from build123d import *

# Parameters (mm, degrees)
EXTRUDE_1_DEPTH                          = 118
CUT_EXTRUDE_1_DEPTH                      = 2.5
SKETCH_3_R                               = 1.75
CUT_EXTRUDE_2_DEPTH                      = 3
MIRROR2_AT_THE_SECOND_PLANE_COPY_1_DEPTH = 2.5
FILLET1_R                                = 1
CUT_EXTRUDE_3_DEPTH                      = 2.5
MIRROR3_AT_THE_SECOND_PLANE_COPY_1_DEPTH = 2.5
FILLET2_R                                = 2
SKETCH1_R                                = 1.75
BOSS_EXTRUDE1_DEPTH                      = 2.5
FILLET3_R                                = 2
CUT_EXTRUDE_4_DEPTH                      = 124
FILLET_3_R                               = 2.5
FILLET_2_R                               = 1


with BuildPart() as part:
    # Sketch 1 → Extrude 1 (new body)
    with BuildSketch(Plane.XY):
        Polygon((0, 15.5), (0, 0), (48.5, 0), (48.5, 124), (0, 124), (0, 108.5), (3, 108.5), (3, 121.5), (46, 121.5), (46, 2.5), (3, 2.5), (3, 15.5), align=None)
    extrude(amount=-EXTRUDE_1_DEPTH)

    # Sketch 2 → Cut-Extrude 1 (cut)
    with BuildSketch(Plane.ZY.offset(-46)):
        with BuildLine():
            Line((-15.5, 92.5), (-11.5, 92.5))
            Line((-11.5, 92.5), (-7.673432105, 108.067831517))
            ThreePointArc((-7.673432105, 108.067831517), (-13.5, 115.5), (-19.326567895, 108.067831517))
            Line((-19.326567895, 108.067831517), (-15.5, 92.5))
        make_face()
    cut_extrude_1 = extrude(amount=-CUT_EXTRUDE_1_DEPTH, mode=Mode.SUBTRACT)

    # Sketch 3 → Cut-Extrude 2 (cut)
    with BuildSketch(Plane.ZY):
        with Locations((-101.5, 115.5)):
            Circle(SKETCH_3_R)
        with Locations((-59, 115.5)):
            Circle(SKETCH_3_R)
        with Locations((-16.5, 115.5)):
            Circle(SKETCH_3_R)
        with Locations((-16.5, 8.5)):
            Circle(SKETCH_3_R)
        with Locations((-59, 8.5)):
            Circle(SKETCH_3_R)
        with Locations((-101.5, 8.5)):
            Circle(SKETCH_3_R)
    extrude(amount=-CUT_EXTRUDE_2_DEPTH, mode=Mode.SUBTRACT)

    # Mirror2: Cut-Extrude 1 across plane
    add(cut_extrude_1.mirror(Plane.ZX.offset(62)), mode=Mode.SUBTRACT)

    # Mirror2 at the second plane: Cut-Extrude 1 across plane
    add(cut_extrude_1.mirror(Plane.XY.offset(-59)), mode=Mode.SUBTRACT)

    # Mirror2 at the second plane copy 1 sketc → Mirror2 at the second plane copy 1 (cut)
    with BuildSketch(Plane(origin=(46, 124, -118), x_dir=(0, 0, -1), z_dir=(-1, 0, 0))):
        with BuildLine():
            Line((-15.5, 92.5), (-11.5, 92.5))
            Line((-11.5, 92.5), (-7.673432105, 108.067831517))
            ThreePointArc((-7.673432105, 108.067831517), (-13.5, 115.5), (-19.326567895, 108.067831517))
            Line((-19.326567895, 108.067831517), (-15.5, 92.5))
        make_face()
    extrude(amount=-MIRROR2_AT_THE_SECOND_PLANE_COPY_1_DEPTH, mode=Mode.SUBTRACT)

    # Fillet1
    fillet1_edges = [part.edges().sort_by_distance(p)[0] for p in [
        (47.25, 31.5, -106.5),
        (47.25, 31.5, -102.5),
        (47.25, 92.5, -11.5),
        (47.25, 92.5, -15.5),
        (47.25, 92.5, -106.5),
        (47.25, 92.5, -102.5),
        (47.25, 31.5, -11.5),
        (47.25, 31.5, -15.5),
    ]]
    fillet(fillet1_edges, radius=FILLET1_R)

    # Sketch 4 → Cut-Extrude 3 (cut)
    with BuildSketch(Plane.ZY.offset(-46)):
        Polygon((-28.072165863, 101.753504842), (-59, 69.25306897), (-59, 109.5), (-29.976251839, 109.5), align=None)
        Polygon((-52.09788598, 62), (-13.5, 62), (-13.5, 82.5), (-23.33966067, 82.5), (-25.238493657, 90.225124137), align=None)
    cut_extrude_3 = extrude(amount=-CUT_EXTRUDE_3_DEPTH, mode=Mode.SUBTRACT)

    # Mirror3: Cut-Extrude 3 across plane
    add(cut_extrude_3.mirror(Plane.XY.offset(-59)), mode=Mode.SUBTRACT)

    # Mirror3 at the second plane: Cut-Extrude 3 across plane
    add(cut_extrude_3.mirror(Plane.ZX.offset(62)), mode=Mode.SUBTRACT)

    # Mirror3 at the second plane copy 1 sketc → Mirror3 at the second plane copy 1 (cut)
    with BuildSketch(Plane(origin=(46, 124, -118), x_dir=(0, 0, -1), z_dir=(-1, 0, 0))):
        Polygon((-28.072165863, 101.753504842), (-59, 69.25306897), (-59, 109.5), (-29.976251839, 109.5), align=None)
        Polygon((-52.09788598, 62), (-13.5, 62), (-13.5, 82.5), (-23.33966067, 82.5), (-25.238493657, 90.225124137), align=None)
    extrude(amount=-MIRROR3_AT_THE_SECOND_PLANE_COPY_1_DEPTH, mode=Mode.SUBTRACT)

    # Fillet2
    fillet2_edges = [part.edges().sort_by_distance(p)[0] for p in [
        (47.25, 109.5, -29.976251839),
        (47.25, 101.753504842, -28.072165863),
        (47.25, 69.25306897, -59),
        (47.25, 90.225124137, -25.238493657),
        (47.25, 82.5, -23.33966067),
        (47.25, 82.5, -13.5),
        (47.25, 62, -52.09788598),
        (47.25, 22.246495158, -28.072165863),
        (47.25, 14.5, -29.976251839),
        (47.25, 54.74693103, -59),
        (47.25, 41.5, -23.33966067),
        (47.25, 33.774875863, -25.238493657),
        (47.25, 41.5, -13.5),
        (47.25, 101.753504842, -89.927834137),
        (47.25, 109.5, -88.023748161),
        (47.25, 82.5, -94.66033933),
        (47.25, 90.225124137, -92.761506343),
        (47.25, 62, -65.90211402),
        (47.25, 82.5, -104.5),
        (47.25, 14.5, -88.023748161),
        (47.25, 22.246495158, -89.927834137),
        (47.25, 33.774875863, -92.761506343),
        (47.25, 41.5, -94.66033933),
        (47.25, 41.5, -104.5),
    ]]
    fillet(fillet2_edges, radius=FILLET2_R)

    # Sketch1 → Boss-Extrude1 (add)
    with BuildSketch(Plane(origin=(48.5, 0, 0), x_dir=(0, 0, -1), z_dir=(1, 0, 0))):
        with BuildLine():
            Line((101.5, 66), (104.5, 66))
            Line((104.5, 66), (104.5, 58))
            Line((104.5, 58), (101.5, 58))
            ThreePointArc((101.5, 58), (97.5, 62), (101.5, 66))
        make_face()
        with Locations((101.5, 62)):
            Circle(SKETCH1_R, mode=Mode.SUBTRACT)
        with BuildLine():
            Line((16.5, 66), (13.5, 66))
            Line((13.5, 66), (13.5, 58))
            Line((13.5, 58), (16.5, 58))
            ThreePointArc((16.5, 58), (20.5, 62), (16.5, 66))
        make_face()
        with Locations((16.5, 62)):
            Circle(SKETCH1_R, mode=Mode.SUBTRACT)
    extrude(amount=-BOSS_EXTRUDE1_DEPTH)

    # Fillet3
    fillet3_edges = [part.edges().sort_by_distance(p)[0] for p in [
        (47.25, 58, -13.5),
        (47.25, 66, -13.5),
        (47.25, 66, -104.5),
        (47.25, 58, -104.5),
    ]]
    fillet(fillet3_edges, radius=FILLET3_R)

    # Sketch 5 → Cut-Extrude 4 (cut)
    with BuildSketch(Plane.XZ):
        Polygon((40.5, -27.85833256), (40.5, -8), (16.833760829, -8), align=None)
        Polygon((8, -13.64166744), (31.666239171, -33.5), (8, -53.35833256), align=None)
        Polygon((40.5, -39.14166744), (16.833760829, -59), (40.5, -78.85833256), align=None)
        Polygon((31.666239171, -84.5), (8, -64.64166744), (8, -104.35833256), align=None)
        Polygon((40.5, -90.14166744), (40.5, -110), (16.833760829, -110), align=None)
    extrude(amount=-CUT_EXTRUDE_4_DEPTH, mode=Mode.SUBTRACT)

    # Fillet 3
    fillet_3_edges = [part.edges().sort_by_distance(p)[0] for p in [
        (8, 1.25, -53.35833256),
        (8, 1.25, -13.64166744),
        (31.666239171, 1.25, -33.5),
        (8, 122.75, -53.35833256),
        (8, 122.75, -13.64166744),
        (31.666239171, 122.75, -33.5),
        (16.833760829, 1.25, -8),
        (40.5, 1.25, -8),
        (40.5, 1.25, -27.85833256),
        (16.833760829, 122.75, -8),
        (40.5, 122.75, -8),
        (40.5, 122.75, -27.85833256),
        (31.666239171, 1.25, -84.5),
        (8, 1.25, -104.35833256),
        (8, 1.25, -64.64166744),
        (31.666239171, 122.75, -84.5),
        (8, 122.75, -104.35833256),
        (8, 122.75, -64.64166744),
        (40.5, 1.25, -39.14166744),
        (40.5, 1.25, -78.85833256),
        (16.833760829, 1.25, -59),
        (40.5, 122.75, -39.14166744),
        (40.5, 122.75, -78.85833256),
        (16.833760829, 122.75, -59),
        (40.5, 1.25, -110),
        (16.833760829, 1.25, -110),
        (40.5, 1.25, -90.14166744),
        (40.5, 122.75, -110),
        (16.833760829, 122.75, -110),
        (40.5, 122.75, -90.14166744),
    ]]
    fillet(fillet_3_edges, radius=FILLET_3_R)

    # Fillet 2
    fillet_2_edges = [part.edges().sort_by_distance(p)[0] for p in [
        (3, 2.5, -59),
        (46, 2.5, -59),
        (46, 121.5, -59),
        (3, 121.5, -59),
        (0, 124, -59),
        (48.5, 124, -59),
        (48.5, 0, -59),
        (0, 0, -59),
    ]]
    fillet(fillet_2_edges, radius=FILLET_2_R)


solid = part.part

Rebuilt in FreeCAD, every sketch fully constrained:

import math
import FreeCAD as App
import Part
import Sketcher
Q = App.Units.Quantity


def edges_at(feature, points):
    """Names of the edges that pass closest to the given points."""
    edges = feature.Shape.Edges
    near = lambda p: min(range(len(edges)), key=lambda i: edges[i].distToShape(Part.Vertex(*p))[0])
    return sorted({f"Edge{near(p) + 1}" for p in points})

doc = App.newDocument("Part")
body = doc.addObject("PartDesign::Body", "Body")

sketch1 = body.newObject("Sketcher::SketchObject", "Sketch")
sketch1.AttachmentSupport = (doc.getObject("XY_Plane"), [""])
sketch1.MapMode = "FlatFace"
sketch1.addGeometry([
    Part.LineSegment(App.Vector(0, 15.5, 0), App.Vector(0, 0, 0)),
    Part.LineSegment(App.Vector(0, 0, 0), App.Vector(48.5, 0, 0)),
    Part.LineSegment(App.Vector(48.5, 0, 0), App.Vector(48.5, 124, 0)),
    Part.LineSegment(App.Vector(48.5, 124, 0), App.Vector(0, 124, 0)),
    Part.LineSegment(App.Vector(0, 124, 0), App.Vector(0, 108.5, 0)),
    Part.LineSegment(App.Vector(0, 108.5, 0), App.Vector(3, 108.5, 0)),
    Part.LineSegment(App.Vector(3, 108.5, 0), App.Vector(3, 121.5, 0)),
    Part.LineSegment(App.Vector(3, 121.5, 0), App.Vector(46, 121.5, 0)),
    Part.LineSegment(App.Vector(46, 121.5, 0), App.Vector(46, 2.5, 0)),
    Part.LineSegment(App.Vector(46, 2.5, 0), App.Vector(3, 2.5, 0)),
    Part.LineSegment(App.Vector(3, 2.5, 0), App.Vector(3, 15.5, 0)),
    Part.LineSegment(App.Vector(3, 15.5, 0), App.Vector(0, 15.5, 0)),
], False)
sketch1.addConstraint([
    Sketcher.Constraint("Coincident", 0, 2, 1, 1),
    Sketcher.Constraint("Coincident", 1, 2, 2, 1),
    Sketcher.Constraint("Coincident", 2, 2, 3, 1),
    Sketcher.Constraint("Coincident", 3, 2, 4, 1),
    Sketcher.Constraint("Coincident", 4, 2, 5, 1),
    Sketcher.Constraint("Coincident", 5, 2, 6, 1),
    Sketcher.Constraint("Coincident", 6, 2, 7, 1),
    Sketcher.Constraint("Coincident", 7, 2, 8, 1),
    Sketcher.Constraint("Coincident", 8, 2, 9, 1),
    Sketcher.Constraint("Coincident", 9, 2, 10, 1),
    Sketcher.Constraint("Coincident", 10, 2, 11, 1),
    Sketcher.Constraint("Coincident", 11, 2, 0, 1),
    Sketcher.Constraint("Vertical", 0),
    Sketcher.Constraint("Horizontal", 1),
    Sketcher.Constraint("Vertical", 2),
    Sketcher.Constraint("Horizontal", 3),
    Sketcher.Constraint("Vertical", 4),
    Sketcher.Constraint("Horizontal", 5),
    Sketcher.Constraint("Vertical", 6),
    Sketcher.Constraint("Horizontal", 7),
    Sketcher.Constraint("Vertical", 8),
    Sketcher.Constraint("Horizontal", 9),
    Sketcher.Constraint("Vertical", 10),
    Sketcher.Constraint("Horizontal", 11),
    Sketcher.Constraint("Coincident", 0, 2, -1, 1),
    Sketcher.Constraint("PointOnObject", 3, 2, -2),
    Sketcher.Constraint("Vertical", 6, 2, 9, 2),
    Sketcher.Constraint("Equal", 0, 4),
    Sketcher.Constraint("Equal", 6, 10),
    Sketcher.Constraint("DistanceX", 5, 1, 5, 2, Q("3 mm")),
    Sketcher.Constraint("DistanceX", 7, 1, 7, 2, Q("43 mm")),
    Sketcher.Constraint("DistanceY", 2, 1, 2, 2, Q("124 mm")),
    Sketcher.Constraint("DistanceY", 6, 1, 6, 2, Q("13 mm")),
    Sketcher.Constraint("DistanceY", 8, 2, 8, 1, Q("119 mm")),
    Sketcher.Constraint("DistanceX", 1, 1, 1, 2, Q("48.5 mm")),
])
pad1 = body.newObject("PartDesign::Pad", "Pad")
pad1.Profile = sketch1
pad1.Length = 118
pad1.Reversed = True

sketch2 = body.newObject("Sketcher::SketchObject", "Sketch001")
sketch2.AttachmentSupport = (doc.getObject("YZ_Plane"), [""])
sketch2.MapMode = "FlatFace"
sketch2.AttachmentOffset = App.Placement(App.Vector(0, 0, 46), App.Rotation())
sketch2.addGeometry([
    Part.LineSegment(App.Vector(92.5, -15.5, 0), App.Vector(92.5, -11.5, 0)),
    Part.LineSegment(App.Vector(92.5, -11.5, 0), App.Vector(108.067832, -7.673432, 0)),
    Part.ArcOfCircle(Part.Circle(App.Vector(109.5, -13.5, 0), App.Vector(0, 0, 1), 6), math.radians(-103.809516), math.radians(103.809516)),
    Part.LineSegment(App.Vector(108.067832, -19.326568, 0), App.Vector(92.5, -15.5, 0)),
], False)
sketch2.addConstraint([
    Sketcher.Constraint("Coincident", 0, 2, 1, 1),
    Sketcher.Constraint("Tangent", 1, 2, 2, 2),
    Sketcher.Constraint("Tangent", 2, 1, 3, 1),
    Sketcher.Constraint("Coincident", 3, 2, 0, 1),
    Sketcher.Constraint("Vertical", 0),
    Sketcher.Constraint("Vertical", 1, 2, 2, 1),
    Sketcher.Constraint("Radius", 2, Q("6 mm")),
    Sketcher.Constraint("DistanceY", 0, 1, 0, 2, Q("4 mm")),
    Sketcher.Constraint("DistanceX", 0, 2, 2, 3, Q("17 mm")),
    Sketcher.Constraint("DistanceX", -1, 1, 2, 3, Q("109.5 mm")),
    Sketcher.Constraint("DistanceY", 2, 3, -1, 1, Q("13.5 mm")),
])
pocket1 = body.newObject("PartDesign::Pocket", "Pocket")
pocket1.Profile = sketch2
pocket1.Length = 2.5
pocket1.Reversed = True

sketch3 = body.newObject("Sketcher::SketchObject", "Sketch002")
sketch3.AttachmentSupport = (doc.getObject("YZ_Plane"), [""])
sketch3.MapMode = "FlatFace"
sketch3.addGeometry([
    Part.Circle(App.Vector(115.5, -101.5, 0), App.Vector(0, 0, 1), 1.75),
    Part.Circle(App.Vector(115.5, -59, 0), App.Vector(0, 0, 1), 1.75),
    Part.Circle(App.Vector(115.5, -16.5, 0), App.Vector(0, 0, 1), 1.75),
    Part.Circle(App.Vector(8.5, -16.5, 0), App.Vector(0, 0, 1), 1.75),
    Part.Circle(App.Vector(8.5, -59, 0), App.Vector(0, 0, 1), 1.75),
    Part.Circle(App.Vector(8.5, -101.5, 0), App.Vector(0, 0, 1), 1.75),
], False)
sketch3.addConstraint([
    Sketcher.Constraint("Equal", 0, 1),
    Sketcher.Constraint("Equal", 1, 2),
    Sketcher.Constraint("Equal", 2, 3),
    Sketcher.Constraint("Equal", 3, 4),
    Sketcher.Constraint("Equal", 4, 5),
    Sketcher.Constraint("Horizontal", 2, 3, 3, 3),
    Sketcher.Constraint("Horizontal", 1, 3, 4, 3),
    Sketcher.Constraint("Horizontal", 0, 3, 5, 3),
    Sketcher.Constraint("Vertical", 0, 3, 1, 3),
    Sketcher.Constraint("Vertical", 1, 3, 2, 3),
    Sketcher.Constraint("Vertical", 3, 3, 4, 3),
    Sketcher.Constraint("Vertical", 4, 3, 5, 3),
    Sketcher.Constraint("Diameter", 0, Q("3.5 mm")),
    Sketcher.Constraint("DistanceY", 1, 3, -1, 1, Q("59 mm")),
    Sketcher.Constraint("DistanceY", 0, 3, 2, 3, Q("85 mm")),
    Sketcher.Constraint("DistanceX", 3, 3, 2, 3, Q("107 mm")),
    Sketcher.Constraint("DistanceX", -1, 1, 0, 3, Q("115.5 mm")),
    Sketcher.Constraint("DistanceY", 0, 3, -1, 1, Q("101.5 mm")),
])
pocket2 = body.newObject("PartDesign::Pocket", "Pocket001")
pocket2.Profile = sketch3
pocket2.Length = 3
pocket2.Reversed = True
doc.recompute()

datumplane = body.newObject("PartDesign::Plane", "DatumPlane")
datumplane.AttachmentSupport = (doc.getObject("XZ_Plane"), [""])
datumplane.MapMode = "FlatFace"
datumplane.AttachmentOffset = App.Placement(App.Vector(0, 0, -62), App.Rotation())
mirrored = body.newObject("PartDesign::Mirrored", "Mirrored")
mirrored.Originals = [pocket1]
mirrored.MirrorPlane = (datumplane, [""])
body.Tip = mirrored
doc.recompute()

datumplane2 = body.newObject("PartDesign::Plane", "DatumPlane001")
datumplane2.AttachmentSupport = (doc.getObject("XY_Plane"), [""])
datumplane2.MapMode = "FlatFace"
datumplane2.AttachmentOffset = App.Placement(App.Vector(0, 0, -59), App.Rotation())
mirrored2 = body.newObject("PartDesign::Mirrored", "Mirrored001")
mirrored2.Originals = [pocket1]
mirrored2.MirrorPlane = (datumplane2, [""])
body.Tip = mirrored2

sketch4 = body.newObject("Sketcher::SketchObject", "Sketch003")
sketch4.AttachmentSupport = (doc.getObject("YZ_Plane"), [""])
sketch4.MapMode = "FlatFace"
sketch4.AttachmentOffset = App.Placement(App.Vector(0, 0, 46), App.Rotation())
sketch4.addGeometry([
    Part.LineSegment(App.Vector(31.5, -102.5, 0), App.Vector(31.5, -106.5, 0)),
    Part.LineSegment(App.Vector(31.5, -106.5, 0), App.Vector(15.932168, -110.326568, 0)),
    Part.ArcOfCircle(Part.Circle(App.Vector(14.5, -104.5, 0), App.Vector(0, 0, 1), 6), math.radians(76.190484), math.radians(283.809516)),
    Part.LineSegment(App.Vector(15.932168, -98.673432, 0), App.Vector(31.5, -102.5, 0)),
], False)
sketch4.addConstraint([
    Sketcher.Constraint("Coincident", 0, 2, 1, 1),
    Sketcher.Constraint("Tangent", 1, 2, 2, 2),
    Sketcher.Constraint("Tangent", 2, 1, 3, 1),
    Sketcher.Constraint("Coincident", 3, 2, 0, 1),
    Sketcher.Constraint("Vertical", 0),
    Sketcher.Constraint("Vertical", 1, 2, 2, 1),
    Sketcher.Constraint("Radius", 2, Q("6 mm")),
    Sketcher.Constraint("DistanceY", 0, 2, 0, 1, Q("4 mm")),
    Sketcher.Constraint("DistanceX", 2, 3, 0, 2, Q("17 mm")),
    Sketcher.Constraint("DistanceX", -1, 1, 2, 3, Q("14.5 mm")),
    Sketcher.Constraint("DistanceY", 2, 3, -1, 1, Q("104.5 mm")),
])
pocket3 = body.newObject("PartDesign::Pocket", "Pocket002")
pocket3.Profile = sketch4
pocket3.Length = 2.5
pocket3.Reversed = True
doc.recompute()

fillet = body.newObject("PartDesign::Fillet", "Fillet")
fillet.Base = (pocket3, edges_at(pocket3, [
    (47.25, 31.5, -106.5),
    (47.25, 31.5, -102.5),
    (47.25, 92.5, -11.5),
    (47.25, 92.5, -15.5),
    (47.25, 92.5, -106.5),
    (47.25, 92.5, -102.5),
    (47.25, 31.5, -11.5),
    (47.25, 31.5, -15.5),
]))
fillet.Radius = 1

sketch5 = body.newObject("Sketcher::SketchObject", "Sketch004")
sketch5.AttachmentSupport = (doc.getObject("YZ_Plane"), [""])
sketch5.MapMode = "FlatFace"
sketch5.AttachmentOffset = App.Placement(App.Vector(0, 0, 46), App.Rotation())
sketch5.addGeometry([
    Part.LineSegment(App.Vector(69.253069, -59, 0), App.Vector(101.753505, -28.072166, 0)),
    Part.LineSegment(App.Vector(101.753505, -28.072166, 0), App.Vector(109.5, -29.976252, 0)),
    Part.LineSegment(App.Vector(109.5, -29.976252, 0), App.Vector(109.5, -59, 0)),
    Part.LineSegment(App.Vector(109.5, -59, 0), App.Vector(69.253069, -59, 0)),
    Part.LineSegment(App.Vector(62, -52.097886, 0), App.Vector(62, -13.5, 0)),
    Part.LineSegment(App.Vector(62, -13.5, 0), App.Vector(82.5, -13.5, 0)),
    Part.LineSegment(App.Vector(82.5, -13.5, 0), App.Vector(82.5, -23.339661, 0)),
    Part.LineSegment(App.Vector(82.5, -23.339661, 0), App.Vector(90.225124, -25.238494, 0)),
    Part.LineSegment(App.Vector(90.225124, -25.238494, 0), App.Vector(62, -52.097886, 0)),
], False)
sketch5.addConstraint([
    Sketcher.Constraint("Coincident", 0, 2, 1, 1),
    Sketcher.Constraint("Coincident", 1, 2, 2, 1),
    Sketcher.Constraint("Coincident", 2, 2, 3, 1),
    Sketcher.Constraint("Coincident", 3, 2, 0, 1),
    Sketcher.Constraint("Coincident", 4, 2, 5, 1),
    Sketcher.Constraint("Coincident", 5, 2, 6, 1),
    Sketcher.Constraint("Coincident", 6, 2, 7, 1),
    Sketcher.Constraint("Coincident", 7, 2, 8, 1),
    Sketcher.Constraint("Coincident", 8, 2, 4, 1),
    Sketcher.Constraint("Vertical", 2),
    Sketcher.Constraint("Horizontal", 3),
    Sketcher.Constraint("Vertical", 4),
    Sketcher.Constraint("Horizontal", 5),
    Sketcher.Constraint("Vertical", 6),
    Sketcher.Constraint("Parallel", 1, 7),
    Sketcher.Constraint("Parallel", 0, 8),
    Sketcher.Constraint("DistanceX", 5, 1, 5, 2, Q("20.5 mm")),
    Sketcher.Constraint("DistanceY", 2, 2, -1, 1, Q("59 mm")),
    Sketcher.Constraint("DistanceX", -1, 1, 4, 2, Q("62 mm")),
    Sketcher.Constraint("DistanceX", 5, 2, 1, 2, Q("27 mm")),
    Sketcher.Constraint("DistanceY", 4, 2, -1, 1, Q("13.5 mm")),
    Sketcher.Constraint("DistanceX", 3, 2, 3, 1, Q("40.246931 mm")),
    Sketcher.Constraint("DistanceY", 2, 2, 2, 1, Q("29.023748 mm")),
    Sketcher.Constraint("DistanceY", 6, 2, 6, 1, Q("9.839661 mm")),
    Sketcher.Constraint("Distance", 7, Q("7.955068 mm")),
    Sketcher.Constraint("DistanceY", 4, 1, 4, 2, Q("38.597886 mm")),
    Sketcher.Constraint("DistanceX", 7, 2, 0, 2, Q("11.528381 mm")),
])
pocket4 = body.newObject("PartDesign::Pocket", "Pocket003")
pocket4.Profile = sketch5
pocket4.Length = 2.5
pocket4.Reversed = True
doc.recompute()

datumplane3 = body.newObject("PartDesign::Plane", "DatumPlane002")
datumplane3.AttachmentSupport = (doc.getObject("XY_Plane"), [""])
datumplane3.MapMode = "FlatFace"
datumplane3.AttachmentOffset = App.Placement(App.Vector(0, 0, -59), App.Rotation())
mirrored3 = body.newObject("PartDesign::Mirrored", "Mirrored002")
mirrored3.Originals = [pocket4]
mirrored3.MirrorPlane = (datumplane3, [""])
body.Tip = mirrored3
doc.recompute()

datumplane4 = body.newObject("PartDesign::Plane", "DatumPlane003")
datumplane4.AttachmentSupport = (doc.getObject("XZ_Plane"), [""])
datumplane4.MapMode = "FlatFace"
datumplane4.AttachmentOffset = App.Placement(App.Vector(0, 0, -62), App.Rotation())
mirrored4 = body.newObject("PartDesign::Mirrored", "Mirrored003")
mirrored4.Originals = [pocket4]
mirrored4.MirrorPlane = (datumplane4, [""])
body.Tip = mirrored4

sketch6 = body.newObject("Sketcher::SketchObject", "Sketch005")
sketch6.AttachmentSupport = (doc.getObject("YZ_Plane"), [""])
sketch6.MapMode = "FlatFace"
sketch6.AttachmentOffset = App.Placement(App.Vector(0, 0, 46), App.Rotation())
sketch6.addGeometry([
    Part.LineSegment(App.Vector(54.746931, -59, 0), App.Vector(22.246495, -89.927834, 0)),
    Part.LineSegment(App.Vector(22.246495, -89.927834, 0), App.Vector(14.5, -88.023748, 0)),
    Part.LineSegment(App.Vector(14.5, -88.023748, 0), App.Vector(14.5, -59, 0)),
    Part.LineSegment(App.Vector(14.5, -59, 0), App.Vector(54.746931, -59, 0)),
    Part.LineSegment(App.Vector(62, -65.902114, 0), App.Vector(62, -104.5, 0)),
    Part.LineSegment(App.Vector(62, -104.5, 0), App.Vector(41.5, -104.5, 0)),
    Part.LineSegment(App.Vector(41.5, -104.5, 0), App.Vector(41.5, -94.660339, 0)),
    Part.LineSegment(App.Vector(41.5, -94.660339, 0), App.Vector(33.774876, -92.761506, 0)),
    Part.LineSegment(App.Vector(33.774876, -92.761506, 0), App.Vector(62, -65.902114, 0)),
], False)
sketch6.addConstraint([
    Sketcher.Constraint("Coincident", 0, 2, 1, 1),
    Sketcher.Constraint("Coincident", 1, 2, 2, 1),
    Sketcher.Constraint("Coincident", 2, 2, 3, 1),
    Sketcher.Constraint("Coincident", 3, 2, 0, 1),
    Sketcher.Constraint("Coincident", 4, 2, 5, 1),
    Sketcher.Constraint("Coincident", 5, 2, 6, 1),
    Sketcher.Constraint("Coincident", 6, 2, 7, 1),
    Sketcher.Constraint("Coincident", 7, 2, 8, 1),
    Sketcher.Constraint("Coincident", 8, 2, 4, 1),
    Sketcher.Constraint("Vertical", 2),
    Sketcher.Constraint("Horizontal", 3),
    Sketcher.Constraint("Vertical", 4),
    Sketcher.Constraint("Horizontal", 5),
    Sketcher.Constraint("Vertical", 6),
    Sketcher.Constraint("Parallel", 1, 7),
    Sketcher.Constraint("Parallel", 0, 8),
    Sketcher.Constraint("DistanceX", 5, 2, 5, 1, Q("20.5 mm")),
    Sketcher.Constraint("DistanceY", 2, 2, -1, 1, Q("59 mm")),
    Sketcher.Constraint("DistanceX", -1, 1, 4, 2, Q("62 mm")),
    Sketcher.Constraint("DistanceX", 1, 2, 5, 2, Q("27 mm")),
    Sketcher.Constraint("DistanceY", 4, 2, -1, 1, Q("104.5 mm")),
    Sketcher.Constraint("DistanceX", 3, 1, 3, 2, Q("40.246931 mm")),
    Sketcher.Constraint("DistanceY", 2, 1, 2, 2, Q("29.023748 mm")),
    Sketcher.Constraint("DistanceY", 6, 1, 6, 2, Q("9.839661 mm")),
    Sketcher.Constraint("Distance", 7, Q("7.955068 mm")),
    Sketcher.Constraint("DistanceY", 4, 2, 4, 1, Q("38.597886 mm")),
    Sketcher.Constraint("DistanceX", 0, 2, 7, 2, Q("11.528381 mm")),
])
pocket5 = body.newObject("PartDesign::Pocket", "Pocket004")
pocket5.Profile = sketch6
pocket5.Length = 2.5
pocket5.Reversed = True
doc.recompute()

fillet2 = body.newObject("PartDesign::Fillet", "Fillet001")
fillet2.Base = (pocket5, edges_at(pocket5, [
    (47.25, 109.5, -29.976),
    (47.25, 101.754, -28.072),
    (47.25, 69.253, -59),
    (47.25, 90.225, -25.238),
    (47.25, 82.5, -23.34),
    (47.25, 82.5, -13.5),
    (47.25, 62, -52.098),
    (47.25, 22.246, -28.072),
    (47.25, 14.5, -29.976),
    (47.25, 54.747, -59),
    (47.25, 41.5, -23.34),
    (47.25, 33.775, -25.238),
    (47.25, 41.5, -13.5),
    (47.25, 101.754, -89.928),
    (47.25, 109.5, -88.024),
    (47.25, 82.5, -94.66),
    (47.25, 90.225, -92.762),
    (47.25, 62, -65.902),
    (47.25, 82.5, -104.5),
    (47.25, 14.5, -88.024),
    (47.25, 22.246, -89.928),
    (47.25, 33.775, -92.762),
    (47.25, 41.5, -94.66),
    (47.25, 41.5, -104.5),
]))
fillet2.Radius = 2

sketch7 = body.newObject("Sketcher::SketchObject", "Sketch006")
sketch7.AttachmentSupport = (doc.getObject("YZ_Plane"), [""])
sketch7.MapMode = "FlatFace"
sketch7.AttachmentOffset = App.Placement(App.Vector(0, 0, 48.5), App.Rotation())
sketch7.addGeometry([
    Part.LineSegment(App.Vector(66, -104.5, 0), App.Vector(66, -101.5, 0)),
    Part.ArcOfCircle(Part.Circle(App.Vector(62, -101.5, 0), App.Vector(0, 0, 1), 4), math.radians(0), math.radians(180)),
    Part.LineSegment(App.Vector(58, -101.5, 0), App.Vector(58, -104.5, 0)),
    Part.LineSegment(App.Vector(58, -104.5, 0), App.Vector(66, -104.5, 0)),
    Part.Circle(App.Vector(62, -101.5, 0), App.Vector(0, 0, 1), 1.75),
    Part.LineSegment(App.Vector(66, -16.5, 0), App.Vector(66, -13.5, 0)),
    Part.LineSegment(App.Vector(66, -13.5, 0), App.Vector(58, -13.5, 0)),
    Part.LineSegment(App.Vector(58, -13.5, 0), App.Vector(58, -16.5, 0)),
    Part.ArcOfCircle(Part.Circle(App.Vector(62, -16.5, 0), App.Vector(0, 0, 1), 4), math.radians(180), math.radians(360)),
    Part.Circle(App.Vector(62, -16.5, 0), App.Vector(0, 0, 1), 1.75),
], False)
sketch7.addConstraint([
    Sketcher.Constraint("Tangent", 0, 2, 1, 1),
    Sketcher.Constraint("Tangent", 1, 2, 2, 1),
    Sketcher.Constraint("Coincident", 2, 2, 3, 1),
    Sketcher.Constraint("Coincident", 3, 2, 0, 1),
    Sketcher.Constraint("Coincident", 5, 2, 6, 1),
    Sketcher.Constraint("Coincident", 6, 2, 7, 1),
    Sketcher.Constraint("Tangent", 7, 2, 8, 1),
    Sketcher.Constraint("Tangent", 8, 2, 5, 1),
    Sketcher.Constraint("Vertical", 0),
    Sketcher.Constraint("Vertical", 2),
    Sketcher.Constraint("Horizontal", 3),
    Sketcher.Constraint("Vertical", 5),
    Sketcher.Constraint("Horizontal", 6),
    Sketcher.Constraint("Vertical", 7),
    Sketcher.Constraint("Coincident", 4, 3, 1, 3),
    Sketcher.Constraint("Coincident", 9, 3, 8, 3),
    Sketcher.Constraint("Equal", 1, 8),
    Sketcher.Constraint("Equal", 4, 9),
    Sketcher.Constraint("Vertical", 4, 3, 8, 3),
    Sketcher.Constraint("Equal", 2, 5),
    Sketcher.Constraint("Radius", 1, Q("4 mm")),
    Sketcher.Constraint("Diameter", 4, Q("3.5 mm")),
    Sketcher.Constraint("DistanceY", 0, 1, 0, 2, Q("3 mm")),
    Sketcher.Constraint("DistanceX", -1, 1, 1, 3, Q("62 mm")),
    Sketcher.Constraint("DistanceY", 1, 3, 8, 3, Q("85 mm")),
    Sketcher.Constraint("DistanceY", 1, 3, -1, 1, Q("101.5 mm")),
])
pad2 = body.newObject("PartDesign::Pad", "Pad001")
pad2.Profile = sketch7
pad2.Length = 2.5
pad2.Reversed = True
doc.recompute()

fillet3 = body.newObject("PartDesign::Fillet", "Fillet002")
fillet3.Base = (pad2, edges_at(pad2, [
    (47.25, 58, -13.5),
    (47.25, 66, -13.5),
    (47.25, 66, -104.5),
    (47.25, 58, -104.5),
]))
fillet3.Radius = 2

sketch8 = body.newObject("Sketcher::SketchObject", "Sketch007")
sketch8.AttachmentSupport = (doc.getObject("XZ_Plane"), [""])
sketch8.MapMode = "FlatFace"
sketch8.addGeometry([
    Part.LineSegment(App.Vector(40.5, -27.858333, 0), App.Vector(40.5, -8, 0)),
    Part.LineSegment(App.Vector(40.5, -8, 0), App.Vector(16.833761, -8, 0)),
    Part.LineSegment(App.Vector(16.833761, -8, 0), App.Vector(40.5, -27.858333, 0)),
    Part.LineSegment(App.Vector(31.666239, -33.5, 0), App.Vector(8, -13.641667, 0)),
    Part.LineSegment(App.Vector(8, -13.641667, 0), App.Vector(8, -53.358333, 0)),
    Part.LineSegment(App.Vector(8, -53.358333, 0), App.Vector(31.666239, -33.5, 0)),
    Part.LineSegment(App.Vector(40.5, -39.141667, 0), App.Vector(16.833761, -59, 0)),
    Part.LineSegment(App.Vector(16.833761, -59, 0), App.Vector(40.5, -78.858333, 0)),
    Part.LineSegment(App.Vector(40.5, -78.858333, 0), App.Vector(40.5, -39.141667, 0)),
    Part.LineSegment(App.Vector(31.666239, -84.5, 0), App.Vector(8, -64.641667, 0)),
    Part.LineSegment(App.Vector(8, -64.641667, 0), App.Vector(8, -104.358333, 0)),
    Part.LineSegment(App.Vector(8, -104.358333, 0), App.Vector(31.666239, -84.5, 0)),
    Part.LineSegment(App.Vector(40.5, -110, 0), App.Vector(40.5, -90.141667, 0)),
    Part.LineSegment(App.Vector(40.5, -90.141667, 0), App.Vector(16.833761, -110, 0)),
    Part.LineSegment(App.Vector(16.833761, -110, 0), App.Vector(40.5, -110, 0)),
], False)
sketch8.addConstraint([
    Sketcher.Constraint("Coincident", 0, 2, 1, 1),
    Sketcher.Constraint("Coincident", 1, 2, 2, 1),
    Sketcher.Constraint("Coincident", 2, 2, 0, 1),
    Sketcher.Constraint("Coincident", 3, 2, 4, 1),
    Sketcher.Constraint("Coincident", 4, 2, 5, 1),
    Sketcher.Constraint("Coincident", 5, 2, 3, 1),
    Sketcher.Constraint("Coincident", 6, 2, 7, 1),
    Sketcher.Constraint("Coincident", 7, 2, 8, 1),
    Sketcher.Constraint("Coincident", 8, 2, 6, 1),
    Sketcher.Constraint("Coincident", 9, 2, 10, 1),
    Sketcher.Constraint("Coincident", 10, 2, 11, 1),
    Sketcher.Constraint("Coincident", 11, 2, 9, 1),
    Sketcher.Constraint("Coincident", 12, 2, 13, 1),
    Sketcher.Constraint("Coincident", 13, 2, 14, 1),
    Sketcher.Constraint("Coincident", 14, 2, 12, 1),
    Sketcher.Constraint("Vertical", 0),
    Sketcher.Constraint("Horizontal", 1),
    Sketcher.Constraint("Vertical", 4),
    Sketcher.Constraint("Vertical", 8),
    Sketcher.Constraint("Vertical", 10),
    Sketcher.Constraint("Vertical", 12),
    Sketcher.Constraint("Horizontal", 14),
    Sketcher.Constraint("Parallel", 2, 3),
    Sketcher.Constraint("Parallel", 5, 6),
    Sketcher.Constraint("Parallel", 3, 7),
    Sketcher.Constraint("Parallel", 7, 9),
    Sketcher.Constraint("Parallel", 6, 11),
    Sketcher.Constraint("Parallel", 11, 13),
    Sketcher.Constraint("Vertical", 1, 2, 6, 2),
    Sketcher.Constraint("Vertical", 2, 2, 7, 2),
    Sketcher.Constraint("Vertical", 4, 2, 9, 2),
    Sketcher.Constraint("Vertical", 5, 2, 11, 2),
    Sketcher.Constraint("Vertical", 8, 2, 12, 2),
    Sketcher.Constraint("Vertical", 6, 2, 13, 2),
    Sketcher.Constraint("Equal", 4, 8),
    Sketcher.Constraint("Equal", 0, 12),
    Sketcher.Constraint("Angle", 2, Q("-40 deg")),
    Sketcher.Constraint("DistanceY", 0, 2, -1, 1, Q("8 mm")),
    Sketcher.Constraint("DistanceX", -1, 1, 3, 2, Q("8 mm")),
    Sketcher.Constraint("DistanceY", 6, 2, -1, 1, Q("59 mm")),
    Sketcher.Constraint("DistanceY", 13, 2, -1, 1, Q("110 mm")),
    Sketcher.Constraint("DistanceY", 10, 2, 4, 2, Q("51 mm")),
    Sketcher.Constraint("DistanceX", -1, 1, 0, 2, Q("40.5 mm")),
    Sketcher.Constraint("DistanceY", 5, 2, -1, 1, Q("33.5 mm")),
    Sketcher.Constraint("DistanceX", 1, 2, 1, 1, Q("23.666239 mm")),
])
pocket6 = body.newObject("PartDesign::Pocket", "Pocket005")
pocket6.Profile = sketch8
pocket6.Length = 124
doc.recompute()

fillet4 = body.newObject("PartDesign::Fillet", "Fillet003")
fillet4.Base = (pocket6, edges_at(pocket6, [
    (8, 1.25, -53.358),
    (8, 1.25, -13.642),
    (31.666, 1.25, -33.5),
    (8, 122.75, -53.358),
    (8, 122.75, -13.642),
    (31.666, 122.75, -33.5),
    (16.834, 1.25, -8),
    (40.5, 1.25, -8),
    (40.5, 1.25, -27.858),
    (16.834, 122.75, -8),
    (40.5, 122.75, -8),
    (40.5, 122.75, -27.858),
    (31.666, 1.25, -84.5),
    (8, 1.25, -104.358),
    (8, 1.25, -64.642),
    (31.666, 122.75, -84.5),
    (8, 122.75, -104.358),
    (8, 122.75, -64.642),
    (40.5, 1.25, -39.142),
    (40.5, 1.25, -78.858),
    (16.834, 1.25, -59),
    (40.5, 122.75, -39.142),
    (40.5, 122.75, -78.858),
    (16.834, 122.75, -59),
    (40.5, 1.25, -110),
    (16.834, 1.25, -110),
    (40.5, 1.25, -90.142),
    (40.5, 122.75, -110),
    (16.834, 122.75, -110),
    (40.5, 122.75, -90.142),
]))
fillet4.Radius = 2.5
doc.recompute()

fillet5 = body.newObject("PartDesign::Fillet", "Fillet004")
fillet5.Base = (fillet4, edges_at(fillet4, [
    (3, 2.5, -59),
    (46, 2.5, -59),
    (46, 121.5, -59),
    (3, 121.5, -59),
    (0, 124, -59),
    (48.5, 124, -59),
    (48.5, 0, -59),
    (0, 0, -59),
]))
fillet5.Radius = 1

doc.recompute()
